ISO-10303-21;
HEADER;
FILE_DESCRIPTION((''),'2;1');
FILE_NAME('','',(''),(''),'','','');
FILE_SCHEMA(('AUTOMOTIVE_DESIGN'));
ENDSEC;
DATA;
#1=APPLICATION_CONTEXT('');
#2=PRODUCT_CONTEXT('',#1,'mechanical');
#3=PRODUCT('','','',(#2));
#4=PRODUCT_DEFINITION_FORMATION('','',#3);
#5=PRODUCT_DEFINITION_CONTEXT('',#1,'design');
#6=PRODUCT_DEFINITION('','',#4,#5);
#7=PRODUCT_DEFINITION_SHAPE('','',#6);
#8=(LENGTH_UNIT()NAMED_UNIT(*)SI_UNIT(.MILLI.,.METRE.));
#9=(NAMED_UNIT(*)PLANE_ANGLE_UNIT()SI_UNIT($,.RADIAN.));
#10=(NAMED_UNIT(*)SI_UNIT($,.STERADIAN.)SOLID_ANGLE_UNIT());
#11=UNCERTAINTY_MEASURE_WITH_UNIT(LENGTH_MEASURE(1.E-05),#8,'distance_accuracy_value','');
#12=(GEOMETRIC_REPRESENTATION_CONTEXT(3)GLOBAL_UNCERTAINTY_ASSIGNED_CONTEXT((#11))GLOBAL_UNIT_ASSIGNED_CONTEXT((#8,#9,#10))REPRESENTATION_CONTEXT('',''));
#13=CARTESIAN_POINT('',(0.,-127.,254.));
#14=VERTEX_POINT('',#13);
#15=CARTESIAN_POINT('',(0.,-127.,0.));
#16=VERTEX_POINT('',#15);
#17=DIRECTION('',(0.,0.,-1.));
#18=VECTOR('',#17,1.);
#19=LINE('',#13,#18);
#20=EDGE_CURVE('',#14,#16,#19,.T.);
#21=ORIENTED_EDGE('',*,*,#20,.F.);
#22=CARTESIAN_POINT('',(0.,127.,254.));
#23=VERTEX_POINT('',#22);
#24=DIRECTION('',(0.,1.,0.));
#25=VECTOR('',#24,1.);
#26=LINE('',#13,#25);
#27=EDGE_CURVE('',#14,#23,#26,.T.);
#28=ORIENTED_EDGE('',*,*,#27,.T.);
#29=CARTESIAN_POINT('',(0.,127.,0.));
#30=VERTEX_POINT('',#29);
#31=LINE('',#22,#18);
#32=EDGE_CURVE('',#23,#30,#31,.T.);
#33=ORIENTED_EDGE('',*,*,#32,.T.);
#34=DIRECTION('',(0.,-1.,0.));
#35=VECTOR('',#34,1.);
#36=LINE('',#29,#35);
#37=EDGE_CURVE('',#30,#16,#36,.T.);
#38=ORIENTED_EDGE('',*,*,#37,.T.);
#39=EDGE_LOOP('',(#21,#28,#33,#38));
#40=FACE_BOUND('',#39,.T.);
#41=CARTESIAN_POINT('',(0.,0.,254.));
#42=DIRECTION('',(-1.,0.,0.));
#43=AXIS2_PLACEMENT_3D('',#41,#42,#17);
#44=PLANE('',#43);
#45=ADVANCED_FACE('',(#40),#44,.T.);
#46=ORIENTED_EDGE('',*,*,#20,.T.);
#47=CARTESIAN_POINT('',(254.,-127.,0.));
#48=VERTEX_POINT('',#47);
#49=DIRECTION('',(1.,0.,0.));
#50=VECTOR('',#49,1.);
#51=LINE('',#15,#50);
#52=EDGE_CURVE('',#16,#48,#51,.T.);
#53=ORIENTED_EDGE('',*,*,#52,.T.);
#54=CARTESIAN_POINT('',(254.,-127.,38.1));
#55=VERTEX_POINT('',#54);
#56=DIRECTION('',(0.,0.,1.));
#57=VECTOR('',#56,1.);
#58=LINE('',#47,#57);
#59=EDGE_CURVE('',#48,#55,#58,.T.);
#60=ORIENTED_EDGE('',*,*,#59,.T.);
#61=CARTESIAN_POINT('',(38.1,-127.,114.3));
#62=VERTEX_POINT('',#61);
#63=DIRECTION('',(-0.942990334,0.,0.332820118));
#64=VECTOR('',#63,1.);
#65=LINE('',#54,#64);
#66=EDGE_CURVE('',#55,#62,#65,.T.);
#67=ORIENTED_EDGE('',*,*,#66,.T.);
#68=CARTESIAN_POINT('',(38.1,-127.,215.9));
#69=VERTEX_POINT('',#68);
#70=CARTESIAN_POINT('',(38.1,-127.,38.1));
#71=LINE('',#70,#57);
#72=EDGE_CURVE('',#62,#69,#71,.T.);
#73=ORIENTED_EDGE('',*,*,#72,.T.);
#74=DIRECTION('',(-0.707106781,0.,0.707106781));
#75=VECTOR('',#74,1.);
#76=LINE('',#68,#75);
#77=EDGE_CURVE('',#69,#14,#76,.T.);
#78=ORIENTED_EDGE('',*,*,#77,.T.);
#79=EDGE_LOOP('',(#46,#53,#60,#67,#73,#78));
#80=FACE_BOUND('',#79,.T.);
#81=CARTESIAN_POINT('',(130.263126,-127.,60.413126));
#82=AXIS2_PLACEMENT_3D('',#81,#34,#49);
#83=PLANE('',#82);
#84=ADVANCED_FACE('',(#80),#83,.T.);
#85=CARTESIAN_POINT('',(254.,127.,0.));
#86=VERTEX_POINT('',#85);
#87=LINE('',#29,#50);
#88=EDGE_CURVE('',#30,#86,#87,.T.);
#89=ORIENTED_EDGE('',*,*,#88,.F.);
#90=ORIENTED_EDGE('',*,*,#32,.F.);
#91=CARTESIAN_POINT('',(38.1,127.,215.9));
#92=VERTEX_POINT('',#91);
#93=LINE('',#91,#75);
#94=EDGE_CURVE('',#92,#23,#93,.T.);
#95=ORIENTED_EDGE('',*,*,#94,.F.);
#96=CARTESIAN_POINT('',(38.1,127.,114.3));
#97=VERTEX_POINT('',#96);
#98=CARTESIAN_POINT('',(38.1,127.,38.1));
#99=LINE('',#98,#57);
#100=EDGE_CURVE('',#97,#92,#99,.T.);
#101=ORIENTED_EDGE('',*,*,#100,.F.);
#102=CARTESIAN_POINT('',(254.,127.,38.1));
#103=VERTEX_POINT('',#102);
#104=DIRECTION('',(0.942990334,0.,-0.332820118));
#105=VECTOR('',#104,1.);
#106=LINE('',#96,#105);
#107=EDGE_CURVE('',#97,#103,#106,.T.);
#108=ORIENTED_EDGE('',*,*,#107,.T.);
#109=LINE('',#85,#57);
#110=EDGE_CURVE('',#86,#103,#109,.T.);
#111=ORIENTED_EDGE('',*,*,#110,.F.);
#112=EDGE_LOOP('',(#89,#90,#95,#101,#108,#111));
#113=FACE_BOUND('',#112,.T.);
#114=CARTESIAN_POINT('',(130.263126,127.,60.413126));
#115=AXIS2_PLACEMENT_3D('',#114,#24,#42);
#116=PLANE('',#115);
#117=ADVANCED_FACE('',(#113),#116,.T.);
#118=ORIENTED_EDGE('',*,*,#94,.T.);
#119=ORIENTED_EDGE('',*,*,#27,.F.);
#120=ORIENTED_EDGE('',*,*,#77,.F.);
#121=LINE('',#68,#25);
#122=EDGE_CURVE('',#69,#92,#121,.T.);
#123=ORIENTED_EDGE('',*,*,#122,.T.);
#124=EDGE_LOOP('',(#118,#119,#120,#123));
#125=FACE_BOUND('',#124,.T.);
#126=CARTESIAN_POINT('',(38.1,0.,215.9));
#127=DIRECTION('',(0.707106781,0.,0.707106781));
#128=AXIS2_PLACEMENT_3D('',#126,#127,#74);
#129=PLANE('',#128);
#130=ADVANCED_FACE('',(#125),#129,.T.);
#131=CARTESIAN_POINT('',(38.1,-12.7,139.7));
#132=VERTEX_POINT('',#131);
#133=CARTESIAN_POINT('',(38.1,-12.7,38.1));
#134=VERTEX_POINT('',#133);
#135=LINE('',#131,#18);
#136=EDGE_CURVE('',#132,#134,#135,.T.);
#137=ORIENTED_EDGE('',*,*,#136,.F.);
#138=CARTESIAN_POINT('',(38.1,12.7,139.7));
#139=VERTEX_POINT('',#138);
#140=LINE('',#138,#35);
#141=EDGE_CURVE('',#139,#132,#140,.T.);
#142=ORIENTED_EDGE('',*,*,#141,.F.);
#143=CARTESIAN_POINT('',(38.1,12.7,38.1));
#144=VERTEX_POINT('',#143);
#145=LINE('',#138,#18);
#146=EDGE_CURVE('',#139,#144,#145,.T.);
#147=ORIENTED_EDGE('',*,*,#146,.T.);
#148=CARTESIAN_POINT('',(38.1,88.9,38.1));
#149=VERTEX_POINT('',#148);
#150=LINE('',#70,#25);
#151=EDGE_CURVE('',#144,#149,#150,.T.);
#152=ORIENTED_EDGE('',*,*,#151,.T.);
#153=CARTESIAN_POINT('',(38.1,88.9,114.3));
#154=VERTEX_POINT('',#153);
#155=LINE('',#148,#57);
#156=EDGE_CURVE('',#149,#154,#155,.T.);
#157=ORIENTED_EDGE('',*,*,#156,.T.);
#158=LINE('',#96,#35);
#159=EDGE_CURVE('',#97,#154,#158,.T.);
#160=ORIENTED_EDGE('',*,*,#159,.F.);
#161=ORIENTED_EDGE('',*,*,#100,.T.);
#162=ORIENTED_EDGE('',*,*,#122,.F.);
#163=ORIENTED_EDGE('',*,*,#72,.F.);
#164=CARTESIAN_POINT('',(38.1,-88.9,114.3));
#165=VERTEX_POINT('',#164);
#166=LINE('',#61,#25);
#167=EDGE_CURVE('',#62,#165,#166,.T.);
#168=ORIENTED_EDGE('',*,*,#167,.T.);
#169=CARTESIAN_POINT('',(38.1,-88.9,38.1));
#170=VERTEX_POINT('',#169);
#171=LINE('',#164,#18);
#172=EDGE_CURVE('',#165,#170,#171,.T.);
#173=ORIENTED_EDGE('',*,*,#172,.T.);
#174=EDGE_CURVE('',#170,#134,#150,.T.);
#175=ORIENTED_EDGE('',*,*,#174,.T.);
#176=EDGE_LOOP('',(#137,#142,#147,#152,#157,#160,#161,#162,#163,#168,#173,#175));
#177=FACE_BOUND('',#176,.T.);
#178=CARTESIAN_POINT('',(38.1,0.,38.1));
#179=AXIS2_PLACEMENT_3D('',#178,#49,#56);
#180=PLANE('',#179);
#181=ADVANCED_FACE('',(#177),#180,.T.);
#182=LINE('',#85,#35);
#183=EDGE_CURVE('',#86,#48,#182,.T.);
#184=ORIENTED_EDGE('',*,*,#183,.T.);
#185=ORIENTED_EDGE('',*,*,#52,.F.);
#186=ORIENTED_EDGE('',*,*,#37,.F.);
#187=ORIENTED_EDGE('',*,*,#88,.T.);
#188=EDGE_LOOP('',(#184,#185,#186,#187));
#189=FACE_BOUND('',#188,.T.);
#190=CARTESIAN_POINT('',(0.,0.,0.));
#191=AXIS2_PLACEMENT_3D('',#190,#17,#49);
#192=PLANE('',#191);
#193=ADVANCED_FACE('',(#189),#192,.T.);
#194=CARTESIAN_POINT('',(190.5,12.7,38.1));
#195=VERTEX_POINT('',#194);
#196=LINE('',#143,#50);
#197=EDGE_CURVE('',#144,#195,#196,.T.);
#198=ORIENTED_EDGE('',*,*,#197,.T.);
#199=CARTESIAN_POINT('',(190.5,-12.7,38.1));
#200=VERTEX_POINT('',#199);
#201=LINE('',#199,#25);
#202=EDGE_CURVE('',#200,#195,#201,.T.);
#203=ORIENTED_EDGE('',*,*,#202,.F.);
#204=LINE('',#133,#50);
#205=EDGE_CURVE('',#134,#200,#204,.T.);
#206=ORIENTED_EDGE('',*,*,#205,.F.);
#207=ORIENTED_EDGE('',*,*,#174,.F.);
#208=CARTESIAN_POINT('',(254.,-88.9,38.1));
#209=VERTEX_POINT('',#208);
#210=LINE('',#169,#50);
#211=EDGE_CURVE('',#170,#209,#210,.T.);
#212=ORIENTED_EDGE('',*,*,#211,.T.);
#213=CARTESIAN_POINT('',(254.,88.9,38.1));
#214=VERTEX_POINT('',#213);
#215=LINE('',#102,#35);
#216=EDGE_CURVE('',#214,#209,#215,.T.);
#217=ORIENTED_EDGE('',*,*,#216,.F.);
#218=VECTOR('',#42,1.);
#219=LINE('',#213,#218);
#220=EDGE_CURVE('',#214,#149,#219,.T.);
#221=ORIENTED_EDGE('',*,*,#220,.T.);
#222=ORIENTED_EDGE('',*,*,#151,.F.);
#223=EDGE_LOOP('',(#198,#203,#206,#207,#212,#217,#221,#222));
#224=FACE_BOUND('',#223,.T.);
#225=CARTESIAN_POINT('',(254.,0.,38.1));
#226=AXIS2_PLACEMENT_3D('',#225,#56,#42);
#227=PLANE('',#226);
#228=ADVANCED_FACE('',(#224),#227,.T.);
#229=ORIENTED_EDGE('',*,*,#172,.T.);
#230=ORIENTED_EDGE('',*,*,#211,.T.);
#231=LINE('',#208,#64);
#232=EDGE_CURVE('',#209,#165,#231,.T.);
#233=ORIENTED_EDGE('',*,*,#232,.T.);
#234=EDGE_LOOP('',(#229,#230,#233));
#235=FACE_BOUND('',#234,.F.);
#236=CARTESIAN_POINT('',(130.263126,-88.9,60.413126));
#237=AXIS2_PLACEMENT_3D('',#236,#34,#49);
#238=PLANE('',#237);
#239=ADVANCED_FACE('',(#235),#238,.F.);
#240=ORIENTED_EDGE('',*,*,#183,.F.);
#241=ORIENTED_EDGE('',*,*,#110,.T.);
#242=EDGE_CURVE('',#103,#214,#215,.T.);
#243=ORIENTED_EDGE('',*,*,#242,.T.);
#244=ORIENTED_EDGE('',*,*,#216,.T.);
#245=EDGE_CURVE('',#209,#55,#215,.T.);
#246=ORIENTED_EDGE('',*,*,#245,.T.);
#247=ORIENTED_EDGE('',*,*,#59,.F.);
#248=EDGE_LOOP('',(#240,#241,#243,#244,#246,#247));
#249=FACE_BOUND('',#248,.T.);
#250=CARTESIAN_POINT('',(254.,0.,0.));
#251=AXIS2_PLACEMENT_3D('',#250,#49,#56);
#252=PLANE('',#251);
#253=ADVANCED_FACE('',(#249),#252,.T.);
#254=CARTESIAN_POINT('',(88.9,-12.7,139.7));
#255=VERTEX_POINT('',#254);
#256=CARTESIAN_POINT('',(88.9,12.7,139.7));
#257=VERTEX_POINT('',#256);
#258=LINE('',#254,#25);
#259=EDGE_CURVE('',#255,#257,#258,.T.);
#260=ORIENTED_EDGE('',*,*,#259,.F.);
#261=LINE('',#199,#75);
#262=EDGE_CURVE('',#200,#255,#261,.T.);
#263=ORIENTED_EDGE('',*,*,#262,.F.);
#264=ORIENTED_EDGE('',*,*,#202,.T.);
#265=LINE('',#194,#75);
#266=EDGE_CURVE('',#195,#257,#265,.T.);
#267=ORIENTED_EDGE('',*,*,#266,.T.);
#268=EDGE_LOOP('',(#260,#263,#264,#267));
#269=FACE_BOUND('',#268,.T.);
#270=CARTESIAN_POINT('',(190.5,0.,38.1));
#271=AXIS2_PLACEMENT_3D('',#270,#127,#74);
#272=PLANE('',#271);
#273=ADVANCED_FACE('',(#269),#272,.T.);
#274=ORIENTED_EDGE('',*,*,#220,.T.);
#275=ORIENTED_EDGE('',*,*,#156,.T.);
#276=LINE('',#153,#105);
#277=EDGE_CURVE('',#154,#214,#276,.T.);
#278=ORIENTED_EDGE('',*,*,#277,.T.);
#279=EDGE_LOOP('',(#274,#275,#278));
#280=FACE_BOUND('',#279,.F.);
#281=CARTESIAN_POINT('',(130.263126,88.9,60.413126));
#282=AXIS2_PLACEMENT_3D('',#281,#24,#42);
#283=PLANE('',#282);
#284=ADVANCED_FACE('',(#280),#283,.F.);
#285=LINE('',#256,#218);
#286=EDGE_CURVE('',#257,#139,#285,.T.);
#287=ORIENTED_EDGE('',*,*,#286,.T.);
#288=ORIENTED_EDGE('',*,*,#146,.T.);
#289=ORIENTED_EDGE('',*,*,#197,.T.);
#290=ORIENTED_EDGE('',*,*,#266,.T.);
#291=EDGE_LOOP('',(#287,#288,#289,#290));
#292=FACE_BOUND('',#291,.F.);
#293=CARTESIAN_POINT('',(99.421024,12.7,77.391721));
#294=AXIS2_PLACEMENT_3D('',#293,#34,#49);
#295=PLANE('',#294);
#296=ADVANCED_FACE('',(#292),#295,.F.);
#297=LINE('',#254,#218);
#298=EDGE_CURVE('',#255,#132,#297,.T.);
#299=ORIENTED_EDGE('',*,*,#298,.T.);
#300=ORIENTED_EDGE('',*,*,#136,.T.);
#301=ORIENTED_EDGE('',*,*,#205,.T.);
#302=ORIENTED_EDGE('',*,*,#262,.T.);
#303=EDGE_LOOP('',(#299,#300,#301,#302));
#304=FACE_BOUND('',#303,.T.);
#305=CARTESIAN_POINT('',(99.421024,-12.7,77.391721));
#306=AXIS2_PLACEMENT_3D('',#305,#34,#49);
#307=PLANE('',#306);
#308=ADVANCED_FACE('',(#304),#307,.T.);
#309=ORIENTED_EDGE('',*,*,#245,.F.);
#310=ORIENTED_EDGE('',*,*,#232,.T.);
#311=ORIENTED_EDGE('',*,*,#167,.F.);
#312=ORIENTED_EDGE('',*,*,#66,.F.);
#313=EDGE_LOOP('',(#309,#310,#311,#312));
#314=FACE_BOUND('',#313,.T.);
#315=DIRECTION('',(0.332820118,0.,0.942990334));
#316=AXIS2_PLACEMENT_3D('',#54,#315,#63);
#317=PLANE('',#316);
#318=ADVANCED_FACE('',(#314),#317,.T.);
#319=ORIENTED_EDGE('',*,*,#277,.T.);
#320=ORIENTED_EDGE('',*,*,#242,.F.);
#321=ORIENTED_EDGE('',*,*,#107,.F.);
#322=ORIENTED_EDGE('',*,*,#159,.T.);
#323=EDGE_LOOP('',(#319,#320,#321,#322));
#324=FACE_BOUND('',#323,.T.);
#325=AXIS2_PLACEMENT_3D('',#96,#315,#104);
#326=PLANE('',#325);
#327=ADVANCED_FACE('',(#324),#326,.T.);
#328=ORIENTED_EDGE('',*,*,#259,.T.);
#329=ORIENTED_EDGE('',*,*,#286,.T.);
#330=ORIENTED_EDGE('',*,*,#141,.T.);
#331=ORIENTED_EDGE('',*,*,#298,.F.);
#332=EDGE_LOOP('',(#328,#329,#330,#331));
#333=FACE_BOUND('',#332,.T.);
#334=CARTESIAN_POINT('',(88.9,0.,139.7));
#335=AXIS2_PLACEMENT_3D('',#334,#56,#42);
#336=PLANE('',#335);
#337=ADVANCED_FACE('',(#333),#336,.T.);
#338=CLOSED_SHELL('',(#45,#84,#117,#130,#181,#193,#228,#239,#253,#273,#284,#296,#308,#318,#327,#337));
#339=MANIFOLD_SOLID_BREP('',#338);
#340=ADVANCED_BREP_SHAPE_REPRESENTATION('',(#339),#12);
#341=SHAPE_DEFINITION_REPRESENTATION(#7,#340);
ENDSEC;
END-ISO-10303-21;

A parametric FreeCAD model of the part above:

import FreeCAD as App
import Part
import Sketcher
Q = App.Units.Quantity


def add_polygon(sketch, points):
    """Adds a closed chain of lines whose ends are joined by coincident constraints."""
    first, n = sketch.GeometryCount, len(points)
    for a, b in zip(points, points[1:] + points[:1]):
        sketch.addGeometry(Part.LineSegment(App.Vector(*a, 0), App.Vector(*b, 0)), False)
    for i in range(n):
        sketch.addConstraint(Sketcher.Constraint("Coincident", first + i, 2, first + (i + 1) % n, 1))

doc = App.newDocument("Part")
body = doc.addObject("PartDesign::Body", "Body")

# Sketch on XZ plane
sketch1 = body.newObject("Sketcher::SketchObject", "Sketch")
sketch1.AttachmentSupport = (doc.getObject("XZ_Plane"), [""])
sketch1.MapMode = "FlatFace"
add_polygon(sketch1, [(0, 254), (0, 0), (254, 0), (254, 38), (38, 38), (38, 216)])  # lines 0-5
sketch1.addConstraint(Sketcher.Constraint("Vertical", 0))
sketch1.addConstraint(Sketcher.Constraint("Horizontal", 1))
sketch1.addConstraint(Sketcher.Constraint("Vertical", 2))
sketch1.addConstraint(Sketcher.Constraint("Horizontal", 3))
sketch1.addConstraint(Sketcher.Constraint("Vertical", 4))
sketch1.addConstraint(Sketcher.Constraint("Coincident", 0, 2, -1, 1))
sketch1.addConstraint(Sketcher.Constraint("Equal", 1, 0))
sketch1.addConstraint(Sketcher.Constraint("DistanceX", 1, 1, 1, 2, Q("10 in")))
sketch1.addConstraint(Sketcher.Constraint("DistanceY", 4, 1, 4, 2, Q("7 in")))
sketch1.addConstraint(Sketcher.Constraint("DistanceX", 3, 2, 3, 1, Q("8.5 in")))
sketch1.addConstraint(Sketcher.Constraint("DistanceY", 2, 1, 2, 2, Q("1.5 in")))
pad1 = body.newObject("PartDesign::Pad", "Pad")
pad1.Profile = sketch1
pad1.Length = Q("10 in")
pad1.Midplane = True

# Sketch on XZ plane
sketch2 = body.newObject("Sketcher::SketchObject", "Sketch001")
sketch2.AttachmentSupport = (doc.getObject("XZ_Plane"), [""])
sketch2.MapMode = "FlatFace"
add_polygon(sketch2, [(89, 140), (38, 140), (38, 38), (190, 38)])  # lines 0-3
sketch2.addConstraint(Sketcher.Constraint("Horizontal", 0))
sketch2.addConstraint(Sketcher.Constraint("Vertical", 1))
sketch2.addConstraint(Sketcher.Constraint("Horizontal", 2))
sketch2.addConstraint(Sketcher.Constraint("DistanceX", 0, 2, 0, 1, Q("2 in")))
sketch2.addConstraint(Sketcher.Constraint("DistanceX", 2, 1, 2, 2, Q("6 in")))
sketch2.addConstraint(Sketcher.Constraint("DistanceY", 1, 2, 1, 1, Q("4 in")))
sketch2.addConstraint(Sketcher.Constraint("DistanceX", -1, 1, 0, 2, Q("1.5 in")))
sketch2.addConstraint(Sketcher.Constraint("DistanceY", -1, 1, 0, 2, Q("5.5 in")))
pad2 = body.newObject("PartDesign::Pad", "Pad001")
pad2.Profile = sketch2
pad2.Length = Q("1 in")
pad2.Midplane = True

# Sketch on XZ plane
sketch3 = body.newObject("Sketcher::SketchObject", "Sketch002")
sketch3.AttachmentSupport = (doc.getObject("XZ_Plane"), [""])
sketch3.MapMode = "FlatFace"
sketch3.AttachmentOffset = App.Placement(App.Vector(0, 0, 5 * 25.4), App.Rotation())
add_polygon(sketch3, [(254, 38), (38, 114), (38, 38)])  # lines 0-2
sketch3.addConstraint(Sketcher.Constraint("Vertical", 1))
sketch3.addConstraint(Sketcher.Constraint("Horizontal", 2))
sketch3.addConstraint(Sketcher.Constraint("DistanceY", 1, 2, 1, 1, Q("3 in")))
sketch3.addConstraint(Sketcher.Constraint("DistanceX", 2, 1, 2, 2, Q("8.5 in")))
sketch3.addConstraint(Sketcher.Constraint("DistanceX", -1, 1, 2, 2, Q("10 in")))
sketch3.addConstraint(Sketcher.Constraint("DistanceY", -1, 1, 0, 2, Q("4.5 in")))
pad3 = body.newObject("PartDesign::Pad", "Pad002")
pad3.Profile = sketch3
pad3.Length = Q("1.5 in")
pad3.Reversed = True

# Sketch on XZ plane
sketch4 = body.newObject("Sketcher::SketchObject", "Sketch003")
sketch4.AttachmentSupport = (doc.getObject("XZ_Plane"), [""])
sketch4.MapMode = "FlatFace"
sketch4.AttachmentOffset = App.Placement(App.Vector(0, 0, -5 * 25.4), App.Rotation())
add_polygon(sketch4, [(38, 38), (38, 114), (254, 38)])  # lines 0-2
sketch4.addConstraint(Sketcher.Constraint("Vertical", 0))
sketch4.addConstraint(Sketcher.Constraint("Horizontal", 2))
sketch4.addConstraint(Sketcher.Constraint("DistanceY", 0, 1, 0, 2, Q("3 in")))
sketch4.addConstraint(Sketcher.Constraint("DistanceX", 2, 2, 2, 1, Q("8.5 in")))
sketch4.addConstraint(Sketcher.Constraint("DistanceX", -1, 1, 1, 2, Q("10 in")))
sketch4.addConstraint(Sketcher.Constraint("DistanceY", -1, 1, 0, 2, Q("4.5 in")))
pad4 = body.newObject("PartDesign::Pad", "Pad003")
pad4.Profile = sketch4
pad4.Length = Q("1.5 in")

doc.recompute()
